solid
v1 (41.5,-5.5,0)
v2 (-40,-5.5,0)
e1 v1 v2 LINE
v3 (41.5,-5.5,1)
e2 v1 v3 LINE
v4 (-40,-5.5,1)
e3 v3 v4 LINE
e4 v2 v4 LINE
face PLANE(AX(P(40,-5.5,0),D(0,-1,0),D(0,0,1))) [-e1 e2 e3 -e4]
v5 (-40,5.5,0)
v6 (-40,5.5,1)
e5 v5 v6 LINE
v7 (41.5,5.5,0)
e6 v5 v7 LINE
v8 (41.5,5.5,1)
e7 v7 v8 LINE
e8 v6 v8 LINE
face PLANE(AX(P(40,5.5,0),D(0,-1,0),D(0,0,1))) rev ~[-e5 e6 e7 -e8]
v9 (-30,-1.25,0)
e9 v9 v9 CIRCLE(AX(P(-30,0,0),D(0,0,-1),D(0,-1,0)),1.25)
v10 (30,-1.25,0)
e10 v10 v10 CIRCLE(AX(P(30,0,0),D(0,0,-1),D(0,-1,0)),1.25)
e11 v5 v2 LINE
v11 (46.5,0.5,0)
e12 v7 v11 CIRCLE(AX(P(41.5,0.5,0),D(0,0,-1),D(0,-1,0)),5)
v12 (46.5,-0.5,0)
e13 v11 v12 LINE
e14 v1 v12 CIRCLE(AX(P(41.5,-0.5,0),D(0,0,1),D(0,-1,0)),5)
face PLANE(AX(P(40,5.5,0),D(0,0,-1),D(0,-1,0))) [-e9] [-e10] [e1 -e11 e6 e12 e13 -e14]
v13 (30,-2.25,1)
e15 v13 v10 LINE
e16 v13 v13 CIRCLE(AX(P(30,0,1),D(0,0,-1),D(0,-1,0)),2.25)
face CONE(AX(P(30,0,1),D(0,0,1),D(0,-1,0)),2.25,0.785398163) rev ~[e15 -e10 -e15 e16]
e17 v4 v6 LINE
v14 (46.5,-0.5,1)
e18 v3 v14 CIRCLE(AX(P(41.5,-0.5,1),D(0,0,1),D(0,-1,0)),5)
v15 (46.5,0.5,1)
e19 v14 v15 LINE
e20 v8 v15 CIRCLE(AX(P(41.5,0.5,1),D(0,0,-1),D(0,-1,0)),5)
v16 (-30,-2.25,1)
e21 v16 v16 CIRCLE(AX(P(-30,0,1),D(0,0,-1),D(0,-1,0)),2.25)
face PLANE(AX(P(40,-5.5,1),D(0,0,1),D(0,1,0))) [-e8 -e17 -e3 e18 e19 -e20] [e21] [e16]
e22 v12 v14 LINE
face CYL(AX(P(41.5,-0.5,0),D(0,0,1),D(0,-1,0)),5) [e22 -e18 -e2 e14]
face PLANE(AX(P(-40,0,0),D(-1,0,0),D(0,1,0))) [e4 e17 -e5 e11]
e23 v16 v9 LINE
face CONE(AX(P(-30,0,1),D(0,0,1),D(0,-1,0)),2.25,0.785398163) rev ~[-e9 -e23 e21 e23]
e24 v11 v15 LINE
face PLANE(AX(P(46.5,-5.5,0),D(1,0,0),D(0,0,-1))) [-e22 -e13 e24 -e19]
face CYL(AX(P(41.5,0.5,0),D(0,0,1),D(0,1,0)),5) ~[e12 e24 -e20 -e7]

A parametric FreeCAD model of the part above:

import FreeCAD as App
import Part
import Sketcher
Q = App.Units.Quantity


def edges_at(feature, points):
    """Names of the edges that pass closest to the given points."""
    edges = feature.Shape.Edges
    near = lambda p: min(range(len(edges)), key=lambda i: edges[i].distToShape(Part.Vertex(*p))[0])
    return sorted({f"Edge{near(p) + 1}" for p in points})

doc = App.newDocument("Part")
body = doc.addObject("PartDesign::Body", "Body")

# Sketch on XY plane
sketch1 = body.newObject("Sketcher::SketchObject", "Sketch")
sketch1.AttachmentSupport = (doc.getObject("XY_Plane"), [""])
sketch1.MapMode = "FlatFace"
sketch1.addGeometry([
    Part.LineSegment(App.Vector(-40, 6, 0), App.Vector(-40, -6, 0)),
    Part.LineSegment(App.Vector(-40, -6, 0), App.Vector(40, -6, 0)),
    Part.LineSegment(App.Vector(40, -6, 0), App.Vector(40, 6, 0)),
    Part.LineSegment(App.Vector(40, 6, 0), App.Vector(-40, 6, 0)),
], False)
sketch1.addConstraint([
    Sketcher.Constraint("Coincident", 0, 2, 1, 1),
    Sketcher.Constraint("Coincident", 1, 2, 2, 1),
    Sketcher.Constraint("Coincident", 2, 2, 3, 1),
    Sketcher.Constraint("Coincident", 3, 2, 0, 1),
    Sketcher.Constraint("Vertical", 0),
    Sketcher.Constraint("Horizontal", 1),
    Sketcher.Constraint("Vertical", 2),
    Sketcher.Constraint("Horizontal", 3),
    Sketcher.Constraint("Symmetric", 0, 2, 2, 2, -1, 1),
    Sketcher.Constraint("DistanceX", 1, 1, 1, 2, Q("80 mm")),
    Sketcher.Constraint("DistanceY", 0, 2, 0, 1, Q("11 mm")),
])
pad1 = body.newObject("PartDesign::Pad", "Pad")
pad1.Profile = sketch1
pad1.Length = 1

# Sketch on XY plane
sketch2 = body.newObject("Sketcher::SketchObject", "Sketch001")
sketch2.AttachmentSupport = (doc.getObject("XY_Plane"), [""])
sketch2.MapMode = "FlatFace"
sketch2.AttachmentOffset = App.Placement(App.Vector(0, 0, 1), App.Rotation())
sketch2.addGeometry([
    Part.Circle(App.Vector(-30, 0, 0), App.Vector(0, 0, 1), 1.2),
    Part.Circle(App.Vector(30, 0, 0), App.Vector(0, 0, 1), 1.2),
], False)
sketch2.addConstraint([
    Sketcher.Constraint("Equal", 0, 1),
    Sketcher.Constraint("Symmetric", 0, 3, 1, 3, -1, 1),
    Sketcher.Constraint("PointOnObject", 0, 3, -1),
    Sketcher.Constraint("Diameter", 0, Q("2.4 mm")),
    Sketcher.Constraint("DistanceX", 0, 3, -1, 1, Q("30 mm")),
])
doc.recompute()
hole = body.newObject("PartDesign::Hole", "Hole")
hole.Profile = sketch2
hole.ThreadType = "None"
hole.Diameter = 2.4
hole.DepthType = "ThroughAll"
hole.HoleCutType = "Countersink"
hole.HoleCutDiameter = 4.5
hole.HoleCutCountersinkAngle = 90

# Sketch on YZ plane
sketch3 = body.newObject("Sketcher::SketchObject", "Sketch002")
sketch3.AttachmentSupport = (doc.getObject("YZ_Plane"), [""])
sketch3.MapMode = "FlatFace"
sketch3.AttachmentOffset = App.Placement(App.Vector(0, 0, 40), App.Rotation())
sketch3.addGeometry([
    Part.LineSegment(App.Vector(-5.5, 0, 0), App.Vector(5.5, 0, 0)),
    Part.LineSegment(App.Vector(5.5, 0, 0), App.Vector(5.5, 1, 0)),
    Part.LineSegment(App.Vector(5.5, 1, 0), App.Vector(-5.5, 1, 0)),
    Part.LineSegment(App.Vector(-5.5, 1, 0), App.Vector(-5.5, 0, 0)),
], False)
sketch3.addConstraint([
    Sketcher.Constraint("Coincident", 0, 2, 1, 1),
    Sketcher.Constraint("Coincident", 1, 2, 2, 1),
    Sketcher.Constraint("Coincident", 2, 2, 3, 1),
    Sketcher.Constraint("Coincident", 3, 2, 0, 1),
    Sketcher.Constraint("Horizontal", 0),
    Sketcher.Constraint("Vertical", 1),
    Sketcher.Constraint("Horizontal", 2),
    Sketcher.Constraint("Vertical", 3),
    Sketcher.Constraint("Symmetric", 0, 2, 3, 2, -1, 1),
    Sketcher.Constraint("DistanceX", 0, 1, 0, 2, Q("11 mm")),
    Sketcher.Constraint("DistanceY", 1, 1, 1, 2, Q("1 mm")),
])
pad2 = body.newObject("PartDesign::Pad", "Pad001")
pad2.Profile = sketch3
pad2.Length = 6.5
doc.recompute()

fillet = body.newObject("PartDesign::Fillet", "Fillet")
fillet.Base = (pad2, edges_at(pad2, [(46.5, -5.5, 0.5), (46.5, 5.5, 0.5)]))
fillet.Radius = 5

doc.recompute()
